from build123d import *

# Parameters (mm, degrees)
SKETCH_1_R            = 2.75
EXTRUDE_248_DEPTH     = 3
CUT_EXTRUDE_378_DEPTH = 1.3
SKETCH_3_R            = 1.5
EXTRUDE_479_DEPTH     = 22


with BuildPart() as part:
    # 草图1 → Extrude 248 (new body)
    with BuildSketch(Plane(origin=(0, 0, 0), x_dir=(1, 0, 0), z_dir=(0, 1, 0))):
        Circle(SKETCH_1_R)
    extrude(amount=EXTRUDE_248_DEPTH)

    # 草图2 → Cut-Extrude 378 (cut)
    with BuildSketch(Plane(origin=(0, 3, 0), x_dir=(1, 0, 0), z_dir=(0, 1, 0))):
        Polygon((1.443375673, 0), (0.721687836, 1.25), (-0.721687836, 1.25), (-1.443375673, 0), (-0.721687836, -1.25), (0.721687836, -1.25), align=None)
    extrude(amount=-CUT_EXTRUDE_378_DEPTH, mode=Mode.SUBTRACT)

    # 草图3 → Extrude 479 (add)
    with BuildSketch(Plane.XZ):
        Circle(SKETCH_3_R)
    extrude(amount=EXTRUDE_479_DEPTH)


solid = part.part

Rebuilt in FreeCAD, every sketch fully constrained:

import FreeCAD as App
import Part
import Sketcher
Q = App.Units.Quantity


def add_polygon(sketch, points):
    """Adds a closed chain of lines whose ends are joined by coincident constraints."""
    first, n = sketch.GeometryCount, len(points)
    for a, b in zip(points, points[1:] + points[:1]):
        sketch.addGeometry(Part.LineSegment(App.Vector(*a, 0), App.Vector(*b, 0)), False)
    for i in range(n):
        sketch.addConstraint(Sketcher.Constraint("Coincident", first + i, 2, first + (i + 1) % n, 1))

doc = App.newDocument("Part")
body = doc.addObject("PartDesign::Body", "Body")

sketch1 = body.newObject("Sketcher::SketchObject", "Sketch")
sketch1.AttachmentSupport = (doc.getObject("XZ_Plane"), [""])
sketch1.MapMode = "FlatFace"
sketch1.addGeometry(Part.Circle(App.Vector(0, 0, 0), App.Vector(0, 0, 1), 2.8), False)
sketch1.addConstraint([
    Sketcher.Constraint("Coincident", 0, 3, -1, 1),
    Sketcher.Constraint("Diameter", 0, 5.5),
])
pad1 = body.newObject("PartDesign::Pad", "Pad")
pad1.Profile = sketch1
pad1.Length = 3
pad1.Reversed = True

sketch2 = body.newObject("Sketcher::SketchObject", "Sketch001")
sketch2.AttachmentSupport = (doc.getObject("XZ_Plane"), [""])
sketch2.MapMode = "FlatFace"
sketch2.AttachmentOffset = App.Placement(App.Vector(0, 0, -3), App.Rotation())
add_polygon(sketch2, [(1.4, 0), (0.7, -1.2), (-0.7, -1.2), (-1.4, 0), (-0.7, 1.2), (0.7, 1.2)])
sketch2.addConstraint([
    Sketcher.Constraint("Horizontal", 1),
    Sketcher.Constraint("Horizontal", 4),
    Sketcher.Constraint("Symmetric", 0, 2, 3, 2, -1, 1),
    Sketcher.Constraint("Symmetric", 2, 2, 5, 2, -1, 1),
    Sketcher.Constraint("PointOnObject", 2, 2, -1),
    Sketcher.Constraint("Parallel", 2, 5),
    Sketcher.Constraint("Vertical", 1, 2, 3, 2),
    Sketcher.Constraint("Angle", 0, Q("-120 deg")),
    Sketcher.Constraint("DistanceY", 1, 2, 3, 2, 2.5),
    Sketcher.Constraint("DistanceX", 1, 2, 1, 1, 1.443376),
])
pocket1 = body.newObject("PartDesign::Pocket", "Pocket")
pocket1.Profile = sketch2
pocket1.Length = 1.3
pocket1.Reversed = True

sketch3 = body.newObject("Sketcher::SketchObject", "Sketch002")
sketch3.AttachmentSupport = (doc.getObject("XZ_Plane"), [""])
sketch3.MapMode = "FlatFace"
sketch3.addGeometry(Part.Circle(App.Vector(0, 0, 0), App.Vector(0, 0, 1), 1.5), False)
sketch3.addConstraint([
    Sketcher.Constraint("Coincident", 0, 3, -1, 1),
    Sketcher.Constraint("Diameter", 0, 3.0),
])
pad2 = body.newObject("PartDesign::Pad", "Pad001")
pad2.Profile = sketch3
pad2.Length = 22

doc.recompute()
